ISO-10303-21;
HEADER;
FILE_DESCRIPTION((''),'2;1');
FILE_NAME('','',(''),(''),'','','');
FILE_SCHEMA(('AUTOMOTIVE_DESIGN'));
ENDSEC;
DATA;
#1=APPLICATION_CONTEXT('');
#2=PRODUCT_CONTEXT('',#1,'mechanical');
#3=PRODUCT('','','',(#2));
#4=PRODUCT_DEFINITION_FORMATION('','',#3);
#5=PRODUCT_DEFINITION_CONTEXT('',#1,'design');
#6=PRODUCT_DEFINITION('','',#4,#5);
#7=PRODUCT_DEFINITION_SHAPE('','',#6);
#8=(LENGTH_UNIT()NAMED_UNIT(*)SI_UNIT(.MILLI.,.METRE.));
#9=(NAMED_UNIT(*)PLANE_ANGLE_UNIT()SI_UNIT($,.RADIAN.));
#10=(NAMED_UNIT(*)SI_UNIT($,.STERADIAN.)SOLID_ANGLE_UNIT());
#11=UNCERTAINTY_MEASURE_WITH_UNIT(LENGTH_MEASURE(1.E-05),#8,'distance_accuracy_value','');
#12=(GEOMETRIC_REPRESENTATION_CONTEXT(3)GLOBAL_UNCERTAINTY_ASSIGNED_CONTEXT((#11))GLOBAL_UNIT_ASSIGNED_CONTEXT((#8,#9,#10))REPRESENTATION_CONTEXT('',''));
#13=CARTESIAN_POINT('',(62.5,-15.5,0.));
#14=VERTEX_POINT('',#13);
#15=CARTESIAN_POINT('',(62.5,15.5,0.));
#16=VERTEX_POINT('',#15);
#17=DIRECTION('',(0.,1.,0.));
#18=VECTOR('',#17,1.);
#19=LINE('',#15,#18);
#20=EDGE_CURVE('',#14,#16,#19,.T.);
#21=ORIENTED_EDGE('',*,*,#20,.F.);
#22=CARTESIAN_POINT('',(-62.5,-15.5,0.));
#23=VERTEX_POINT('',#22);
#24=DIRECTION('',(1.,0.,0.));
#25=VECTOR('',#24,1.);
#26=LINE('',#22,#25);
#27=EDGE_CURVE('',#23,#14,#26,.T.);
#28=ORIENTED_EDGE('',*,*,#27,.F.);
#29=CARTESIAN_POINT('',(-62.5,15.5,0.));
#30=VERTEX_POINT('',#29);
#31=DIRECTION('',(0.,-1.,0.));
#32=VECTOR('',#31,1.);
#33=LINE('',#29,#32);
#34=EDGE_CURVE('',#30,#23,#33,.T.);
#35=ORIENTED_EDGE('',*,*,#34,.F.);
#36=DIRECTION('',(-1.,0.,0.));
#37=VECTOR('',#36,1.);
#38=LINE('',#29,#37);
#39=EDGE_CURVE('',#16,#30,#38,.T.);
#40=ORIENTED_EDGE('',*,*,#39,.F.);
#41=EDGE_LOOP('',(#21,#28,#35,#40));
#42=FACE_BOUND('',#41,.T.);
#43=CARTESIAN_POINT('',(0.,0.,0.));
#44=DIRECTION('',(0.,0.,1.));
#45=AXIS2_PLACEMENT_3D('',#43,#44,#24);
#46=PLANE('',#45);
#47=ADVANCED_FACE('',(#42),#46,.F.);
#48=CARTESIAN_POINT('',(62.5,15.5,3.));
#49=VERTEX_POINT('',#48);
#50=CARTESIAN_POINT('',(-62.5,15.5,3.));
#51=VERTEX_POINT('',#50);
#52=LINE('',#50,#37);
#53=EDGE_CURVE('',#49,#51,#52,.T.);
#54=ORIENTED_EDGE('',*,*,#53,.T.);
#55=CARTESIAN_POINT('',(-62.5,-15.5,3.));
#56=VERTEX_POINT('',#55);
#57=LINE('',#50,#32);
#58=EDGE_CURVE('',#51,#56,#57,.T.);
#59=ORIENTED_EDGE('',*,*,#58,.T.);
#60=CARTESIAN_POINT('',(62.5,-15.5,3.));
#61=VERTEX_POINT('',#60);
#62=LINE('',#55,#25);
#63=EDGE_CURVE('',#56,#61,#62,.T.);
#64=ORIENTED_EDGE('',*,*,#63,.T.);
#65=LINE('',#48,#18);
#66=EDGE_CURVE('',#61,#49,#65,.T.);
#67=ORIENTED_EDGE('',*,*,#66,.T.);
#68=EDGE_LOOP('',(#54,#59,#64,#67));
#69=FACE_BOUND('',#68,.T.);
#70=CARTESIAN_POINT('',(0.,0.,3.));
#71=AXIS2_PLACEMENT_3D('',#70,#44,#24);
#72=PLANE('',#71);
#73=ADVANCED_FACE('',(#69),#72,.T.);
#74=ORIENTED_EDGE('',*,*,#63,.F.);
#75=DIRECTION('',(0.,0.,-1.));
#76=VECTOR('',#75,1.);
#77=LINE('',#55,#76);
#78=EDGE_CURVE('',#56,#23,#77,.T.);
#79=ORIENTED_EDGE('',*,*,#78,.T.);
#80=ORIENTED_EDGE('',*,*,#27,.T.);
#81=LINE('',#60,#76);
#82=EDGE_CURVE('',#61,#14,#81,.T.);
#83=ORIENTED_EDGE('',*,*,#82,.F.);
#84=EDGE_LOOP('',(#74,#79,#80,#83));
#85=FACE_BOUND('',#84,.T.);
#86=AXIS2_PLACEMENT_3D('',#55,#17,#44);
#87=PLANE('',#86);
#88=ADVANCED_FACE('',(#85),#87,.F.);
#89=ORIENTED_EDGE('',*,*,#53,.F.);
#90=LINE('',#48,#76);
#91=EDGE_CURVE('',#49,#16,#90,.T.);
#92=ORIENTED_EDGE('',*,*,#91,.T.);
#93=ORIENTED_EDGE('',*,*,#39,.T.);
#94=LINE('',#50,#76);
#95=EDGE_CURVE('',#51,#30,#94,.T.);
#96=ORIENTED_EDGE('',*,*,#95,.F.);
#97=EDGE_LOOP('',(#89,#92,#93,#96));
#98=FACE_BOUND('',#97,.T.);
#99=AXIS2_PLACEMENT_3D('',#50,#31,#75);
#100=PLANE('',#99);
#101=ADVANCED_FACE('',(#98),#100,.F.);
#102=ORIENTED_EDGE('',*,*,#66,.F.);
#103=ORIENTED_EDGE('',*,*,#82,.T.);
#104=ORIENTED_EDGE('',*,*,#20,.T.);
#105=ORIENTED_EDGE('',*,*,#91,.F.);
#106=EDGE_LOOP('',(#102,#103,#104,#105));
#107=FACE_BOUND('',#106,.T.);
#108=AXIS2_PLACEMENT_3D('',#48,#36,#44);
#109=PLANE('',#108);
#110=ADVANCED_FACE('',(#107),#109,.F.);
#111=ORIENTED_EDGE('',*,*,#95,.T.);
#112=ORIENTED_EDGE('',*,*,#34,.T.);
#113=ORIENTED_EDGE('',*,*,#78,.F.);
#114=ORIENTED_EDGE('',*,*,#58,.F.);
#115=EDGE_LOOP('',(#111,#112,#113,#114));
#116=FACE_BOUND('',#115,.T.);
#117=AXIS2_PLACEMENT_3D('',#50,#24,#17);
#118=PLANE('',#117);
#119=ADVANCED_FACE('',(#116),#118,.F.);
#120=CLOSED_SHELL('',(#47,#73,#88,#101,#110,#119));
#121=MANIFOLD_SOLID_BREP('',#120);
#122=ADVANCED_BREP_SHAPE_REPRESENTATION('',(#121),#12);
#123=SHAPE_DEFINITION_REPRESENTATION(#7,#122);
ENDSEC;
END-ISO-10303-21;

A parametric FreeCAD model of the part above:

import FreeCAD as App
import Part
import Sketcher


def add_polygon(sketch, points):
    """Adds a closed chain of lines whose ends are joined by coincident constraints."""
    first, n = sketch.GeometryCount, len(points)
    for a, b in zip(points, points[1:] + points[:1]):
        sketch.addGeometry(Part.LineSegment(App.Vector(*a, 0), App.Vector(*b, 0)), False)
    for i in range(n):
        sketch.addConstraint(Sketcher.Constraint("Coincident", first + i, 2, first + (i + 1) % n, 1))

doc = App.newDocument("Part")
body = doc.addObject("PartDesign::Body", "Body")

sketch1 = doc.addObject("Sketcher::SketchObject", "Sketch")
body.addObject(sketch1)
sketch1.AttachmentSupport = (doc.XY_Plane, [""])
sketch1.MapMode = "FlatFace"
add_polygon(sketch1, [(-62, 16), (-62, -16), (62, -16), (62, 16)])
sketch1.addConstraint([
    Sketcher.Constraint("Vertical", 0),
    Sketcher.Constraint("Horizontal", 1),
    Sketcher.Constraint("Vertical", 2),
    Sketcher.Constraint("Horizontal", 3),
    Sketcher.Constraint("Symmetric", 0, 2, 2, 2, -1, 1),
    Sketcher.Constraint("DistanceX", 1, 1, 1, 2, 125.0),
    Sketcher.Constraint("DistanceY", 0, 2, 0, 1, 31.0),
])
pad1 = doc.addObject("PartDesign::Pad", "Pad")
body.addObject(pad1)
pad1.Profile = sketch1
pad1.Length = 3

doc.recompute()
